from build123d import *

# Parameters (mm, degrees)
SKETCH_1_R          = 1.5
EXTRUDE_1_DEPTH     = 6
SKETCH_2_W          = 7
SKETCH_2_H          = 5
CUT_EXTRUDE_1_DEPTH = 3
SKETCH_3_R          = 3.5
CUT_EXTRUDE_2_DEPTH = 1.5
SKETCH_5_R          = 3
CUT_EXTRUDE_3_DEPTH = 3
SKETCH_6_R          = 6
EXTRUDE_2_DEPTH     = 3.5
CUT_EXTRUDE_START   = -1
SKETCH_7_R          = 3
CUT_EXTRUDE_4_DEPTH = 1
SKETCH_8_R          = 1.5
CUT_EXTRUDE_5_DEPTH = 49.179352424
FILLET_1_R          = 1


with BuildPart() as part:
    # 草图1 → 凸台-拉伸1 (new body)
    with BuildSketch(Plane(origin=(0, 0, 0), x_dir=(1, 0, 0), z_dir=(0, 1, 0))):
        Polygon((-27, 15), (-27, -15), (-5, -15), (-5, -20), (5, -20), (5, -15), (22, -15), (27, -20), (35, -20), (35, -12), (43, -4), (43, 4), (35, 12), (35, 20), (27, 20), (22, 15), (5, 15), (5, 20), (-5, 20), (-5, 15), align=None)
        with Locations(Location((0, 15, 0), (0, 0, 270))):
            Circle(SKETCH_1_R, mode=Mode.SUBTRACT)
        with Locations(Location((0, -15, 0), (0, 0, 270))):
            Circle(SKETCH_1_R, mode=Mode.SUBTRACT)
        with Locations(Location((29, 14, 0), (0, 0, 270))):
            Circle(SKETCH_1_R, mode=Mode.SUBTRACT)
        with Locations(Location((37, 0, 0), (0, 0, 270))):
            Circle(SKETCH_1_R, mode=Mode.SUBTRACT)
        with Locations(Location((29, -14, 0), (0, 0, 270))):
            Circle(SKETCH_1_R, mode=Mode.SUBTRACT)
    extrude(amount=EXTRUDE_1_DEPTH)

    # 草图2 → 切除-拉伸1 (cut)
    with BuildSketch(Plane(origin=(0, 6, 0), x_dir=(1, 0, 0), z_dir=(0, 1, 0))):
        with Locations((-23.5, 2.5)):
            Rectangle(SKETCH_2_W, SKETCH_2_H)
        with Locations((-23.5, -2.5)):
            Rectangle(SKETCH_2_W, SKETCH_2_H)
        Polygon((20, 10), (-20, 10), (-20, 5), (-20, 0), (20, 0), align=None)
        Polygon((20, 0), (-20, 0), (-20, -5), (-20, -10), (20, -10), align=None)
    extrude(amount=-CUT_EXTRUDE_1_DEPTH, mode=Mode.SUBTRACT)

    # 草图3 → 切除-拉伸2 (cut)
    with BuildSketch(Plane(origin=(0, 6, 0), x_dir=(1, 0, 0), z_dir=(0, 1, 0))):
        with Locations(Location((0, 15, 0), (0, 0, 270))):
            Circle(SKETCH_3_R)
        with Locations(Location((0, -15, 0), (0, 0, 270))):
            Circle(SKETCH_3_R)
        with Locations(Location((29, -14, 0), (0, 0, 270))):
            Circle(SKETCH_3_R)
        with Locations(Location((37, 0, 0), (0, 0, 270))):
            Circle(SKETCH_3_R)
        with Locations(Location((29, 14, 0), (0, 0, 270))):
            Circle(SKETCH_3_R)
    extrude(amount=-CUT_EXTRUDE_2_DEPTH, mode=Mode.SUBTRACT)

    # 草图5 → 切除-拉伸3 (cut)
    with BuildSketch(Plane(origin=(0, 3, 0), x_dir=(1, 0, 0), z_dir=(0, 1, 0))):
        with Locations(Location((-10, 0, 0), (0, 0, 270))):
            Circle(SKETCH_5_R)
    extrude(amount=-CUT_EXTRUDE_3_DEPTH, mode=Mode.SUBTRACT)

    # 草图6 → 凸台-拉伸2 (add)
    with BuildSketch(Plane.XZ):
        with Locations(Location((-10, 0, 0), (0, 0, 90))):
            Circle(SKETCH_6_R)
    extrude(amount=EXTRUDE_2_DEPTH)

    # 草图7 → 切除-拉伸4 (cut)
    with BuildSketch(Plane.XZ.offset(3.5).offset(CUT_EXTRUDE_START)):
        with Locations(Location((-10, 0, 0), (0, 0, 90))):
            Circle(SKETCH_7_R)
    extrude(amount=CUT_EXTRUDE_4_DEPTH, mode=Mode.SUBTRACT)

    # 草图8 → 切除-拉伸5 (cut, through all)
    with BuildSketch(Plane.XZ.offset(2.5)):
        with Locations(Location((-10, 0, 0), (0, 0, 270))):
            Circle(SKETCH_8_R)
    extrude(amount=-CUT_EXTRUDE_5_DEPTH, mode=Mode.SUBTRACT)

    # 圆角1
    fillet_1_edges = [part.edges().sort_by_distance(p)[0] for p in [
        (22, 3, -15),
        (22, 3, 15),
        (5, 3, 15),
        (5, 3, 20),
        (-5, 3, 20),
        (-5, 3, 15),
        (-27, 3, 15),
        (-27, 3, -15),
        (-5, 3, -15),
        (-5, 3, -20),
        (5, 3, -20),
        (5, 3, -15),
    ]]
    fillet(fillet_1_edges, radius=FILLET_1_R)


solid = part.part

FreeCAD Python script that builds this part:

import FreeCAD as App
import Part
import Sketcher
Q = App.Units.Quantity


def edges_at(feature, points):
    """Names of the edges that pass closest to the given points."""
    edges = feature.Shape.Edges
    near = lambda p: min(range(len(edges)), key=lambda i: edges[i].distToShape(Part.Vertex(*p))[0])
    return sorted({f"Edge{near(p) + 1}" for p in points})


def add_polygon(sketch, points):
    """Adds a closed chain of lines whose ends are joined by coincident constraints."""
    first, n = sketch.GeometryCount, len(points)
    for a, b in zip(points, points[1:] + points[:1]):
        sketch.addGeometry(Part.LineSegment(App.Vector(*a, 0), App.Vector(*b, 0)), False)
    for i in range(n):
        sketch.addConstraint(Sketcher.Constraint("Coincident", first + i, 2, first + (i + 1) % n, 1))

doc = App.newDocument("Part")
body = doc.addObject("PartDesign::Body", "Body")

# Sketch on XZ plane
sketch1 = doc.addObject("Sketcher::SketchObject", "Sketch")
body.addObject(sketch1)
sketch1.AttachmentSupport = (doc.XZ_Plane, [""])
sketch1.MapMode = "FlatFace"
add_polygon(sketch1, [(-27, -15), (-27, 15), (-5, 15), (-5, 20), (5, 20), (5, 15), (22, 15), (27, 20), (35, 20), (35, 12), (43, 4), (43, -4), (35, -12), (35, -20), (27, -20), (22, -15), (5, -15), (5, -20), (-5, -20), (-5, -15)])  # lines 0-19
sketch1.addGeometry(Part.Circle(App.Vector(0, 15, 0), App.Vector(0, 0, 1), 1.5), False)  # 20
sketch1.addGeometry(Part.Circle(App.Vector(29, 14, 0), App.Vector(0, 0, 1), 1.5), False)  # 21
sketch1.addGeometry(Part.Circle(App.Vector(0, -15, 0), App.Vector(0, 0, 1), 1.5), False)  # 22
sketch1.addGeometry(Part.Circle(App.Vector(37, 0, 0), App.Vector(0, 0, 1), 1.5), False)  # 23
sketch1.addGeometry(Part.Circle(App.Vector(29, -14, 0), App.Vector(0, 0, 1), 1.5), False)  # 24
sketch1.addConstraint([
    Sketcher.Constraint("Vertical", 0),
    Sketcher.Constraint("Horizontal", 1),
    Sketcher.Constraint("Vertical", 2),
    Sketcher.Constraint("Horizontal", 3),
    Sketcher.Constraint("Vertical", 4),
    Sketcher.Constraint("Horizontal", 5),
    Sketcher.Constraint("Horizontal", 7),
    Sketcher.Constraint("Vertical", 8),
    Sketcher.Constraint("Vertical", 10),
    Sketcher.Constraint("Vertical", 12),
    Sketcher.Constraint("Horizontal", 13),
    Sketcher.Constraint("Horizontal", 15),
    Sketcher.Constraint("Vertical", 16),
    Sketcher.Constraint("Horizontal", 17),
    Sketcher.Constraint("Vertical", 18),
    Sketcher.Constraint("Horizontal", 19),
    Sketcher.Constraint("Equal", 20, 21),
    Sketcher.Constraint("Equal", 21, 22),
    Sketcher.Constraint("Equal", 22, 23),
    Sketcher.Constraint("Equal", 23, 24),
    Sketcher.Constraint("Symmetric", 20, 3, 22, 3, -1, 1),
    Sketcher.Constraint("Symmetric", 1, 2, 15, 2, -1, 1),
    Sketcher.Constraint("Symmetric", 3, 2, 17, 2, -1, 1),
    Sketcher.Constraint("Symmetric", 1, 2, 4, 2, -2),
    Sketcher.Constraint("Symmetric", 21, 3, 24, 3, -1),
    Sketcher.Constraint("Symmetric", 8, 2, 11, 2, -1),
    Sketcher.Constraint("Symmetric", 6, 2, 13, 2, -1),
    Sketcher.Constraint("PointOnObject", 20, 3, -2),
    Sketcher.Constraint("PointOnObject", 23, 3, -1),
    Sketcher.Constraint("Perpendicular", 6, 9),
    Sketcher.Constraint("Perpendicular", 9, 11),
    Sketcher.Constraint("Perpendicular", 11, 14),
    Sketcher.Constraint("Horizontal", 20, 3, 0, 2),
    Sketcher.Constraint("Horizontal", 3, 2, 6, 2),
    Sketcher.Constraint("Horizontal", 15, 2, 18, 2),
    Sketcher.Constraint("Vertical", 5, 2, 14, 2),
    Sketcher.Constraint("Equal", 13, 8),
    Sketcher.Constraint("Equal", 8, 10),
    Sketcher.Constraint("Diameter", 20, Q("3 mm")),
    Sketcher.Constraint("DistanceX", 1, 1, 1, 2, Q("22 mm")),
    Sketcher.Constraint("DistanceX", 3, 1, 3, 2, Q("10 mm")),
    Sketcher.Constraint("DistanceX", 5, 1, 5, 2, Q("17 mm")),
    Sketcher.Constraint("DistanceX", 7, 1, 7, 2, Q("8 mm")),
    Sketcher.Constraint("DistanceY", 0, 1, 0, 2, Q("30 mm")),
    Sketcher.Constraint("DistanceY", 2, 1, 2, 2, Q("5 mm")),
    Sketcher.Constraint("DistanceX", -1, 1, 21, 3, Q("29 mm")),
    Sketcher.Constraint("DistanceY", -1, 1, 21, 3, Q("14 mm")),
    Sketcher.Constraint("DistanceX", -1, 1, 23, 3, Q("37 mm")),
])
pad1 = doc.addObject("PartDesign::Pad", "Pad")
body.addObject(pad1)
pad1.Profile = sketch1
pad1.Length = 6
pad1.Reversed = True

# Sketch on XZ plane
sketch2 = doc.addObject("Sketcher::SketchObject", "Sketch001")
body.addObject(sketch2)
sketch2.AttachmentSupport = (doc.XZ_Plane, [""])
sketch2.MapMode = "FlatFace"
sketch2.AttachmentOffset = App.Placement(App.Vector(0, 0, -6), App.Rotation())
add_polygon(sketch2, [(-27, -5), (-27, 5), (-20, 5), (-20, 10), (20, 10), (20, -10), (-20, -10), (-20, -5)])  # lines 0-7
sketch2.addConstraint([
    Sketcher.Constraint("Vertical", 0),
    Sketcher.Constraint("Horizontal", 1),
    Sketcher.Constraint("Vertical", 2),
    Sketcher.Constraint("Horizontal", 3),
    Sketcher.Constraint("Vertical", 4),
    Sketcher.Constraint("Horizontal", 5),
    Sketcher.Constraint("Vertical", 6),
    Sketcher.Constraint("Horizontal", 7),
    Sketcher.Constraint("Symmetric", 2, 2, 4, 2, -1, 1),
    Sketcher.Constraint("Symmetric", 1, 2, 6, 2, -1),
    Sketcher.Constraint("DistanceX", 1, 1, 1, 2, Q("7 mm")),
    Sketcher.Constraint("DistanceX", 3, 1, 3, 2, Q("40 mm")),
    Sketcher.Constraint("DistanceY", 0, 1, 0, 2, Q("10 mm")),
    Sketcher.Constraint("DistanceY", 2, 1, 2, 2, Q("5 mm")),
])
pocket1 = doc.addObject("PartDesign::Pocket", "Pocket")
body.addObject(pocket1)
pocket1.Profile = sketch2
pocket1.Length = 3
pocket1.Reversed = True

# Sketch on XZ plane
sketch3 = doc.addObject("Sketcher::SketchObject", "Sketch002")
body.addObject(sketch3)
sketch3.AttachmentSupport = (doc.XZ_Plane, [""])
sketch3.MapMode = "FlatFace"
sketch3.AttachmentOffset = App.Placement(App.Vector(0, 0, -6), App.Rotation())
sketch3.addGeometry([
    Part.Circle(App.Vector(0, -15, 0), App.Vector(0, 0, 1), 3.5),  # 0
    Part.Circle(App.Vector(0, 15, 0), App.Vector(0, 0, 1), 3.5),  # 1
    Part.Circle(App.Vector(29, 14, 0), App.Vector(0, 0, 1), 3.5),  # 2
    Part.Circle(App.Vector(37, 0, 0), App.Vector(0, 0, 1), 3.5),  # 3
    Part.Circle(App.Vector(29, -14, 0), App.Vector(0, 0, 1), 3.5),  # 4
], False)
sketch3.addConstraint([
    Sketcher.Constraint("Equal", 0, 1),
    Sketcher.Constraint("Equal", 1, 2),
    Sketcher.Constraint("Equal", 2, 3),
    Sketcher.Constraint("Equal", 3, 4),
    Sketcher.Constraint("Symmetric", 0, 3, 1, 3, -1, 1),
    Sketcher.Constraint("Symmetric", 2, 3, 4, 3, -1),
    Sketcher.Constraint("PointOnObject", 0, 3, -2),
    Sketcher.Constraint("PointOnObject", 3, 3, -1),
    Sketcher.Constraint("Diameter", 0, Q("7 mm")),
    Sketcher.Constraint("DistanceY", 0, 3, -1, 1, Q("15 mm")),
    Sketcher.Constraint("DistanceX", -1, 1, 2, 3, Q("29 mm")),
    Sketcher.Constraint("DistanceY", -1, 1, 2, 3, Q("14 mm")),
    Sketcher.Constraint("DistanceX", -1, 1, 3, 3, Q("37 mm")),
])
pocket2 = doc.addObject("PartDesign::Pocket", "Pocket001")
body.addObject(pocket2)
pocket2.Profile = sketch3
pocket2.Length = 1.5
pocket2.Reversed = True

# Sketch on XZ plane
sketch4 = doc.addObject("Sketcher::SketchObject", "Sketch003")
body.addObject(sketch4)
sketch4.AttachmentSupport = (doc.XZ_Plane, [""])
sketch4.MapMode = "FlatFace"
sketch4.AttachmentOffset = App.Placement(App.Vector(0, 0, -3), App.Rotation())
sketch4.addGeometry(Part.Circle(App.Vector(-10, 0, 0), App.Vector(0, 0, 1), 3), False)
sketch4.addConstraint([
    Sketcher.Constraint("PointOnObject", 0, 3, -1),
    Sketcher.Constraint("Diameter", 0, Q("6 mm")),
    Sketcher.Constraint("DistanceX", 0, 3, -1, 1, Q("10 mm")),
])
pocket3 = doc.addObject("PartDesign::Pocket", "Pocket002")
body.addObject(pocket3)
pocket3.Profile = sketch4
pocket3.Length = 3
pocket3.Reversed = True

# Sketch on XZ plane
sketch5 = doc.addObject("Sketcher::SketchObject", "Sketch004")
body.addObject(sketch5)
sketch5.AttachmentSupport = (doc.XZ_Plane, [""])
sketch5.MapMode = "FlatFace"
sketch5.addGeometry(Part.Circle(App.Vector(-10, 0, 0), App.Vector(0, 0, 1), 6), False)
sketch5.addConstraint([
    Sketcher.Constraint("PointOnObject", 0, 3, -1),
    Sketcher.Constraint("Diameter", 0, Q("12 mm")),
    Sketcher.Constraint("DistanceX", 0, 3, -1, 1, Q("10 mm")),
])
pad2 = doc.addObject("PartDesign::Pad", "Pad001")
body.addObject(pad2)
pad2.Profile = sketch5
pad2.Length = 3.5

# Sketch on XZ plane
sketch6 = doc.addObject("Sketcher::SketchObject", "Sketch005")
body.addObject(sketch6)
sketch6.AttachmentSupport = (doc.XZ_Plane, [""])
sketch6.MapMode = "FlatFace"
sketch6.AttachmentOffset = App.Placement(App.Vector(0, 0, 2.5), App.Rotation())
sketch6.addGeometry(Part.Circle(App.Vector(-10, 0, 0), App.Vector(0, 0, 1), 3), False)
sketch6.addConstraint([
    Sketcher.Constraint("PointOnObject", 0, 3, -1),
    Sketcher.Constraint("Diameter", 0, Q("6 mm")),
    Sketcher.Constraint("DistanceX", 0, 3, -1, 1, Q("10 mm")),
])
pocket4 = doc.addObject("PartDesign::Pocket", "Pocket003")
body.addObject(pocket4)
pocket4.Profile = sketch6
pocket4.Length = 1
pocket4.Reversed = True

# Sketch on XZ plane
sketch7 = doc.addObject("Sketcher::SketchObject", "Sketch006")
body.addObject(sketch7)
sketch7.AttachmentSupport = (doc.XZ_Plane, [""])
sketch7.MapMode = "FlatFace"
sketch7.AttachmentOffset = App.Placement(App.Vector(0, 0, 2.5), App.Rotation())
sketch7.addGeometry(Part.Circle(App.Vector(-10, 0, 0), App.Vector(0, 0, 1), 1.5), False)
sketch7.addConstraint([
    Sketcher.Constraint("PointOnObject", 0, 3, -1),
    Sketcher.Constraint("Diameter", 0, Q("3 mm")),
    Sketcher.Constraint("DistanceX", 0, 3, -1, 1, Q("10 mm")),
])
pocket5 = doc.addObject("PartDesign::Pocket", "Pocket004")
body.addObject(pocket5)
pocket5.Profile = sketch7
pocket5.Type = "ThroughAll"
doc.recompute()

fillet = doc.addObject("PartDesign::Fillet", "Fillet")
body.addObject(fillet)
fillet.Base = (pocket5, edges_at(pocket5, [
    (22, 3, -15),
    (22, 3, 15),
    (5, 3, 15),
    (5, 3, 20),
    (-5, 3, 20),
    (-5, 3, 15),
    (-27, 3, 15),
    (-27, 3, -15),
    (-5, 3, -15),
    (-5, 3, -20),
    (5, 3, -20),
    (5, 3, -15),
]))
fillet.Radius = 1

doc.recompute()
